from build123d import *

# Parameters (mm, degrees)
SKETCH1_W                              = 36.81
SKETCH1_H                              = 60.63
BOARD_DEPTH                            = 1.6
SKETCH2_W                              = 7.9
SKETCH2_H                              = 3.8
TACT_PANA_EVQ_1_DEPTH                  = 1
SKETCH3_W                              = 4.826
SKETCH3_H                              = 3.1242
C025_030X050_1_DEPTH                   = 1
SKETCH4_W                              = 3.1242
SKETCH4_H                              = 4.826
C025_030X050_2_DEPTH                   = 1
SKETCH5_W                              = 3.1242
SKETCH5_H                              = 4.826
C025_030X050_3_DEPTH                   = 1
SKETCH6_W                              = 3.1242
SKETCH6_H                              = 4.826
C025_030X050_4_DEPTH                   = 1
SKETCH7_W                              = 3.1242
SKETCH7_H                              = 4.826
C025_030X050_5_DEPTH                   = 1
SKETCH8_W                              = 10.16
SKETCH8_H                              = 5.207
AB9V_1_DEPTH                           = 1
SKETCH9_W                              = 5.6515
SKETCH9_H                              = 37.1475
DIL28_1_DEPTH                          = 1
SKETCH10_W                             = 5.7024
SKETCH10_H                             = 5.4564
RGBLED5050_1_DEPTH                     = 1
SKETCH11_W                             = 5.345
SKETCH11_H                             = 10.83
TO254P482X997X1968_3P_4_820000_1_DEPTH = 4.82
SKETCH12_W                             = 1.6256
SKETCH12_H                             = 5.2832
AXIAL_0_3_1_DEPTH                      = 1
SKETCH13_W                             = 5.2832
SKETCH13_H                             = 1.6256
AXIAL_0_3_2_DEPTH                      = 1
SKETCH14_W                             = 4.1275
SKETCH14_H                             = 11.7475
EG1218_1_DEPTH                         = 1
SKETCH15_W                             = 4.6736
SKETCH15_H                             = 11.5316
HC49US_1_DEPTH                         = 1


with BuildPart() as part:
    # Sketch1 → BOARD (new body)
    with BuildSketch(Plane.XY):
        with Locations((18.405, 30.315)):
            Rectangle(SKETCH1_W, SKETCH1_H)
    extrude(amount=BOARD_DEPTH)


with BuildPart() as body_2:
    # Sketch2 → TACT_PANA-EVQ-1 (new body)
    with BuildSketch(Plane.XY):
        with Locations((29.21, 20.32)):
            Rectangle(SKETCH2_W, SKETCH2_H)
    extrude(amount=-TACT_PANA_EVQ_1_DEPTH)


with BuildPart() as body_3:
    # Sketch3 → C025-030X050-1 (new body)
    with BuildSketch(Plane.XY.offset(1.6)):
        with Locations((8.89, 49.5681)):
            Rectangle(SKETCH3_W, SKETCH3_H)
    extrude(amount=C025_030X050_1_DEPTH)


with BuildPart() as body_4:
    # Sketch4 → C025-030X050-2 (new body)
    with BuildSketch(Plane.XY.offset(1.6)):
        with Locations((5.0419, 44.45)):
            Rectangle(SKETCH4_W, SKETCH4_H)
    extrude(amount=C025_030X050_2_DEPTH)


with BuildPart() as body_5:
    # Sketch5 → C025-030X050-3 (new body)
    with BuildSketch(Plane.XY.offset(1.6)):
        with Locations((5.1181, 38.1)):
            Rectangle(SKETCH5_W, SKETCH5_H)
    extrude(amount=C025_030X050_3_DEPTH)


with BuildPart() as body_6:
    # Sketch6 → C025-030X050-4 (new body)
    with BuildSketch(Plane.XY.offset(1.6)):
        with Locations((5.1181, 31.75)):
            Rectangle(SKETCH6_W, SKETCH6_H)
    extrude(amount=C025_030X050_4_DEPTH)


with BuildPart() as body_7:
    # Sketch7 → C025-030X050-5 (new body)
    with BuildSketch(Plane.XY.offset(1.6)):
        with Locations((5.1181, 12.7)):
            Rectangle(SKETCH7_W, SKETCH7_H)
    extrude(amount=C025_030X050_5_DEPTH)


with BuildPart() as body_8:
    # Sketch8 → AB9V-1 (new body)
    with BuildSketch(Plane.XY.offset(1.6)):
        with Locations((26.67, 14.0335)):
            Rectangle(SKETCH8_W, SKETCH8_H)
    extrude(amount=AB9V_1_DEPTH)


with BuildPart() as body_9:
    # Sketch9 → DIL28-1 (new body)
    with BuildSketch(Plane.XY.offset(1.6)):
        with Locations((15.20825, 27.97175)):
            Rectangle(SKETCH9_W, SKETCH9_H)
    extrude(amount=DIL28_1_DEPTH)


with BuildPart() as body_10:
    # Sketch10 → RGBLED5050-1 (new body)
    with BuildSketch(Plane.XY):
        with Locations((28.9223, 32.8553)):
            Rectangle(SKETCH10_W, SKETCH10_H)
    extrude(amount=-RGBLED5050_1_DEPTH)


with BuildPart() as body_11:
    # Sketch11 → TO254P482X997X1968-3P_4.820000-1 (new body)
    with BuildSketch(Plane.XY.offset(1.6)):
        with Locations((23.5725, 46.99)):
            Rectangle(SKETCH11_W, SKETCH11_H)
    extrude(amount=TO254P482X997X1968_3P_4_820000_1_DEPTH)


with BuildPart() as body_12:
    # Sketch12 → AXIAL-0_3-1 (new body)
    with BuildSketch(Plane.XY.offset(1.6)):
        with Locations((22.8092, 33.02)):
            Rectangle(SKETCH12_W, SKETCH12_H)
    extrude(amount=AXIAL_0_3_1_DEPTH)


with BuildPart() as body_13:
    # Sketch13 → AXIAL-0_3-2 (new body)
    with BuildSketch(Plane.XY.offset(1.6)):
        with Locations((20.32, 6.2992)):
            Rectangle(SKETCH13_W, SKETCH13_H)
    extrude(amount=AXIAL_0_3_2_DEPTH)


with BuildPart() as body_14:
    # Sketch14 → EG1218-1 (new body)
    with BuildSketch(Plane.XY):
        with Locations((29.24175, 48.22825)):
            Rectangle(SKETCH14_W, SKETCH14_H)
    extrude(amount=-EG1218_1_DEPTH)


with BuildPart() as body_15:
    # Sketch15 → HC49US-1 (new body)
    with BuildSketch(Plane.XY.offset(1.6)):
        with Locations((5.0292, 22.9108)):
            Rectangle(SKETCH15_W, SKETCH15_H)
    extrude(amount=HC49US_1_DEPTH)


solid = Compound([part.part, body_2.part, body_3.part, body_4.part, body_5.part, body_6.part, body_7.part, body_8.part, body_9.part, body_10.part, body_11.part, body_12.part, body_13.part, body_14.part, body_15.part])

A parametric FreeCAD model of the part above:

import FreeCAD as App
import Part
import Sketcher

V = App.Vector
Q = App.Units.Quantity


def add_polygon(sketch, points):
    """Adds a closed chain of lines whose ends are joined by coincident constraints."""
    first, n = sketch.GeometryCount, len(points)
    for a, b in zip(points, points[1:] + points[:1]):
        sketch.addGeometry(Part.LineSegment(App.Vector(*a, 0), App.Vector(*b, 0)), False)
    for i in range(n):
        sketch.addConstraint(Sketcher.Constraint("Coincident", first + i, 2, first + (i + 1) % n, 1))

doc = App.newDocument("Part")
params = doc.addObject("Spreadsheet::Sheet", "Params")
for row, (alias, value) in enumerate([
    ("pad1_length", "1.6 mm"),
    ("pad2_length", "1 mm"),
    ("sketch3_width", "0.19 in"),
    ("sketch3_height", "0.123 in"),
    ("pad3_length", "1 mm"),
    ("sketch4_height", "0.19 in"),
    ("sketch4_width", "0.123 in"),
    ("pad4_length", "1 mm"),
    ("sketch5_height", "0.19 in"),
    ("sketch5_width", "0.123 in"),
    ("pad5_length", "1 mm"),
    ("sketch6_height", "0.19 in"),
    ("sketch6_width", "0.123 in"),
    ("pad6_length", "1 mm"),
    ("sketch7_height", "0.19 in"),
    ("sketch7_width", "0.123 in"),
    ("pad7_length", "1 mm"),
    ("sketch8_width", "0.4 in"),
    ("sketch8_height", "0.205 in"),
    ("pad8_length", "1 mm"),
    ("pad9_length", "1 mm"),
    ("pad10_length", "1 mm"),
    ("pad11_length", "4.82 mm"),
    ("sketch12_width", "0.064 in"),
    ("sketch12_height", "0.208 in"),
    ("pad12_length", "1 mm"),
    ("sketch13_width", "0.208 in"),
    ("sketch13_height", "0.064 in"),
    ("pad13_length", "1 mm"),
    ("pad14_length", "1 mm"),
    ("sketch15_width", "0.184 in"),
    ("sketch15_height", "0.454 in"),
    ("pad15_length", "1 mm"),
], start=1):
    params.set(f"A{row}", alias)
    params.set(f"B{row}", "=" + value)
    params.setAlias(f"B{row}", alias)

body = doc.addObject("PartDesign::Body", "Body")

# Sketch on XY plane
sketch1 = body.newObject("Sketcher::SketchObject", "Sketch")
sketch1.AttachmentSupport = (doc.getObject("XY_Plane"), [""])
sketch1.MapMode = "FlatFace"
add_polygon(sketch1, [(0, 61), (0, 0), (37, 0), (37, 61)])  # lines 0-3
sketch1.addConstraint(Sketcher.Constraint("Vertical", 0))
sketch1.addConstraint(Sketcher.Constraint("Horizontal", 1))
sketch1.addConstraint(Sketcher.Constraint("Vertical", 2))
sketch1.addConstraint(Sketcher.Constraint("Horizontal", 3))
sketch1.addConstraint(Sketcher.Constraint("Coincident", 0, 2, -1, 1))
sketch1.addConstraint(Sketcher.Constraint("DistanceX", 1, 1, 1, 2, 36.81))
sketch1.addConstraint(Sketcher.Constraint("DistanceY", 0, 2, 0, 1, 60.63))
pad1 = body.newObject("PartDesign::Pad", "Pad")
pad1.Profile = sketch1
pad1.setExpression("Length", "Params.pad1_length")
body2 = doc.addObject("PartDesign::Body", "Body001")

# Sketch on XY plane
sketch2 = body2.newObject("Sketcher::SketchObject", "Sketch001")
sketch2.AttachmentSupport = (doc.getObject("XY_Plane001"), [""])
sketch2.MapMode = "FlatFace"
add_polygon(sketch2, [(25.3, 22.2), (25.3, 18.4), (33.2, 18.4), (33.2, 22.2)])  # lines 0-3
sketch2.addConstraint(Sketcher.Constraint("Vertical", 0))
sketch2.addConstraint(Sketcher.Constraint("Horizontal", 1))
sketch2.addConstraint(Sketcher.Constraint("Vertical", 2))
sketch2.addConstraint(Sketcher.Constraint("Horizontal", 3))
sketch2.addConstraint(Sketcher.Constraint("DistanceX", 1, 1, 1, 2, 7.9))
sketch2.addConstraint(Sketcher.Constraint("DistanceY", 0, 2, 0, 1, 3.8))
sketch2.addConstraint(Sketcher.Constraint("DistanceX", -1, 1, 0, 2, 25.26))
sketch2.addConstraint(Sketcher.Constraint("DistanceY", -1, 1, 0, 2, 18.42))
pad2 = body2.newObject("PartDesign::Pad", "Pad001")
pad2.Profile = sketch2
pad2.setExpression("Length", "Params.pad2_length")
pad2.Reversed = True
body3 = doc.addObject("PartDesign::Body", "Body002")

# Sketch on XY plane
sketch3 = body3.newObject("Sketcher::SketchObject", "Sketch002")
sketch3.AttachmentSupport = (doc.getObject("XY_Plane002"), [""])
sketch3.MapMode = "FlatFace"
sketch3.AttachmentOffset = App.Placement(V(0, 0, 1.6), App.Rotation())
add_polygon(sketch3, [(6.5, 51.1), (6.5, 48), (11.3, 48), (11.3, 51.1)])  # lines 0-3
sketch3.addConstraint(Sketcher.Constraint("Vertical", 0))
sketch3.addConstraint(Sketcher.Constraint("Horizontal", 1))
sketch3.addConstraint(Sketcher.Constraint("Vertical", 2))
sketch3.addConstraint(Sketcher.Constraint("Horizontal", 3))
sketch3.addConstraint(Sketcher.Constraint("DistanceX", 1, 1, 1, 2, Q("0.19 in")))
sketch3.addConstraint(Sketcher.Constraint("DistanceY", 0, 2, 0, 1, Q("0.123 in")))
sketch3.addConstraint(Sketcher.Constraint("DistanceY", -1, 1, 0, 2, Q("1.89 in")))
sketch3.addConstraint(Sketcher.Constraint("DistanceX", -1, 1, 0, 2, Q("0.255 in")))
sketch3.setExpression("Constraints[8]", "Params.sketch3_width")
sketch3.setExpression("Constraints[9]", "Params.sketch3_height")
pad3 = body3.newObject("PartDesign::Pad", "Pad002")
pad3.Profile = sketch3
pad3.setExpression("Length", "Params.pad3_length")
body4 = doc.addObject("PartDesign::Body", "Body003")

# Sketch on XY plane
sketch4 = body4.newObject("Sketcher::SketchObject", "Sketch003")
sketch4.AttachmentSupport = (doc.getObject("XY_Plane003"), [""])
sketch4.MapMode = "FlatFace"
sketch4.AttachmentOffset = App.Placement(V(0, 0, 1.6), App.Rotation())
add_polygon(sketch4, [(3.5, 46.9), (3.5, 42), (6.6, 42), (6.6, 46.9)])  # lines 0-3
sketch4.addConstraint(Sketcher.Constraint("Vertical", 0))
sketch4.addConstraint(Sketcher.Constraint("Horizontal", 1))
sketch4.addConstraint(Sketcher.Constraint("Vertical", 2))
sketch4.addConstraint(Sketcher.Constraint("Horizontal", 3))
sketch4.addConstraint(Sketcher.Constraint("DistanceY", 0, 2, 0, 1, Q("0.19 in")))
sketch4.addConstraint(Sketcher.Constraint("DistanceX", 1, 1, 1, 2, Q("0.123 in")))
sketch4.addConstraint(Sketcher.Constraint("DistanceX", -1, 1, 1, 2, Q("0.26 in")))
sketch4.addConstraint(Sketcher.Constraint("DistanceY", -1, 1, 0, 2, Q("1.655 in")))
sketch4.setExpression("Constraints[8]", "Params.sketch4_height")
sketch4.setExpression("Constraints[9]", "Params.sketch4_width")
pad4 = body4.newObject("PartDesign::Pad", "Pad003")
pad4.Profile = sketch4
pad4.setExpression("Length", "Params.pad4_length")
body5 = doc.addObject("PartDesign::Body", "Body004")

# Sketch on XY plane
sketch5 = body5.newObject("Sketcher::SketchObject", "Sketch004")
sketch5.AttachmentSupport = (doc.getObject("XY_Plane004"), [""])
sketch5.MapMode = "FlatFace"
sketch5.AttachmentOffset = App.Placement(V(0, 0, 1.6), App.Rotation())
add_polygon(sketch5, [(3.6, 40.5), (3.6, 35.7), (6.7, 35.7), (6.7, 40.5)])  # lines 0-3
sketch5.addConstraint(Sketcher.Constraint("Vertical", 0))
sketch5.addConstraint(Sketcher.Constraint("Horizontal", 1))
sketch5.addConstraint(Sketcher.Constraint("Vertical", 2))
sketch5.addConstraint(Sketcher.Constraint("Horizontal", 3))
sketch5.addConstraint(Sketcher.Constraint("DistanceY", 0, 2, 0, 1, Q("0.19 in")))
sketch5.addConstraint(Sketcher.Constraint("DistanceX", 1, 1, 1, 2, Q("0.123 in")))
sketch5.addConstraint(Sketcher.Constraint("DistanceX", -1, 1, 0, 2, Q("0.14 in")))
sketch5.addConstraint(Sketcher.Constraint("DistanceY", -1, 1, 0, 2, Q("1.405 in")))
sketch5.setExpression("Constraints[8]", "Params.sketch5_height")
sketch5.setExpression("Constraints[9]", "Params.sketch5_width")
pad5 = body5.newObject("PartDesign::Pad", "Pad004")
pad5.Profile = sketch5
pad5.setExpression("Length", "Params.pad5_length")
body6 = doc.addObject("PartDesign::Body", "Body005")

# Sketch on XY plane
sketch6 = body6.newObject("Sketcher::SketchObject", "Sketch005")
sketch6.AttachmentSupport = (doc.getObject("XY_Plane005"), [""])
sketch6.MapMode = "FlatFace"
sketch6.AttachmentOffset = App.Placement(V(0, 0, 1.6), App.Rotation())
add_polygon(sketch6, [(3.6, 34.2), (3.6, 29.3), (6.7, 29.3), (6.7, 34.2)])  # lines 0-3
sketch6.addConstraint(Sketcher.Constraint("Vertical", 0))
sketch6.addConstraint(Sketcher.Constraint("Horizontal", 1))
sketch6.addConstraint(Sketcher.Constraint("Vertical", 2))
sketch6.addConstraint(Sketcher.Constraint("Horizontal", 3))
sketch6.addConstraint(Sketcher.Constraint("DistanceY", 0, 2, 0, 1, Q("0.19 in")))
sketch6.addConstraint(Sketcher.Constraint("DistanceX", 1, 1, 1, 2, Q("0.123 in")))
sketch6.addConstraint(Sketcher.Constraint("DistanceX", -1, 1, 0, 2, Q("0.14 in")))
sketch6.addConstraint(Sketcher.Constraint("DistanceY", -1, 1, 0, 2, Q("1.155 in")))
sketch6.setExpression("Constraints[8]", "Params.sketch6_height")
sketch6.setExpression("Constraints[9]", "Params.sketch6_width")
pad6 = body6.newObject("PartDesign::Pad", "Pad005")
pad6.Profile = sketch6
pad6.setExpression("Length", "Params.pad6_length")
body7 = doc.addObject("PartDesign::Body", "Body006")

# Sketch on XY plane
sketch7 = body7.newObject("Sketcher::SketchObject", "Sketch006")
sketch7.AttachmentSupport = (doc.getObject("XY_Plane006"), [""])
sketch7.MapMode = "FlatFace"
sketch7.AttachmentOffset = App.Placement(V(0, 0, 1.6), App.Rotation())
add_polygon(sketch7, [(3.6, 15.1), (3.6, 10.3), (6.7, 10.3), (6.7, 15.1)])  # lines 0-3
sketch7.addConstraint(Sketcher.Constraint("Vertical", 0))
sketch7.addConstraint(Sketcher.Constraint("Horizontal", 1))
sketch7.addConstraint(Sketcher.Constraint("Vertical", 2))
sketch7.addConstraint(Sketcher.Constraint("Horizontal", 3))
sketch7.addConstraint(Sketcher.Constraint("DistanceY", 0, 2, 0, 1, Q("0.19 in")))
sketch7.addConstraint(Sketcher.Constraint("DistanceX", 1, 1, 1, 2, Q("0.123 in")))
sketch7.addConstraint(Sketcher.Constraint("DistanceX", -1, 1, 0, 2, Q("0.14 in")))
sketch7.addConstraint(Sketcher.Constraint("DistanceY", -1, 1, 0, 2, Q("0.405 in")))
sketch7.setExpression("Constraints[8]", "Params.sketch7_height")
sketch7.setExpression("Constraints[9]", "Params.sketch7_width")
pad7 = body7.newObject("PartDesign::Pad", "Pad006")
pad7.Profile = sketch7
pad7.setExpression("Length", "Params.pad7_length")
body8 = doc.addObject("PartDesign::Body", "Body007")

# Sketch on XY plane
sketch8 = body8.newObject("Sketcher::SketchObject", "Sketch007")
sketch8.AttachmentSupport = (doc.getObject("XY_Plane007"), [""])
sketch8.MapMode = "FlatFace"
sketch8.AttachmentOffset = App.Placement(V(0, 0, 1.6), App.Rotation())
add_polygon(sketch8, [(22, 17), (22, 11), (32, 11), (32, 17)])  # lines 0-3
sketch8.addConstraint(Sketcher.Constraint("Vertical", 0))
sketch8.addConstraint(Sketcher.Constraint("Horizontal", 1))
sketch8.addConstraint(Sketcher.Constraint("Vertical", 2))
sketch8.addConstraint(Sketcher.Constraint("Horizontal", 3))
sketch8.addConstraint(Sketcher.Constraint("DistanceX", 1, 1, 1, 2, Q("0.4 in")))
sketch8.addConstraint(Sketcher.Constraint("DistanceY", 0, 2, 0, 1, Q("0.205 in")))
sketch8.addConstraint(Sketcher.Constraint("DistanceX", -1, 1, 0, 2, Q("0.85 in")))
sketch8.addConstraint(Sketcher.Constraint("DistanceY", -1, 1, 0, 2, Q("0.45 in")))
sketch8.setExpression("Constraints[8]", "Params.sketch8_width")
sketch8.setExpression("Constraints[9]", "Params.sketch8_height")
pad8 = body8.newObject("PartDesign::Pad", "Pad007")
pad8.Profile = sketch8
pad8.setExpression("Length", "Params.pad8_length")
body9 = doc.addObject("PartDesign::Body", "Body008")

# Sketch on XY plane
sketch9 = body9.newObject("Sketcher::SketchObject", "Sketch008")
sketch9.AttachmentSupport = (doc.getObject("XY_Plane008"), [""])
sketch9.MapMode = "FlatFace"
sketch9.AttachmentOffset = App.Placement(V(0, 0, 1.6), App.Rotation())
add_polygon(sketch9, [(12, 47), (12, 9), (18, 9), (18, 47)])  # lines 0-3
sketch9.addConstraint(Sketcher.Constraint("Vertical", 0))
sketch9.addConstraint(Sketcher.Constraint("Horizontal", 1))
sketch9.addConstraint(Sketcher.Constraint("Vertical", 2))
sketch9.addConstraint(Sketcher.Constraint("Horizontal", 3))
sketch9.addConstraint(Sketcher.Constraint("DistanceY", -1, 1, 0, 2, Q("0.37 in")))
sketch9.addConstraint(Sketcher.Constraint("DistanceX", -1, 1, 1, 2, Q("0.71 in")))
sketch9.addConstraint(Sketcher.Constraint("DistanceX", 1, 1, 1, 2, Q("0.2225 in")))
sketch9.addConstraint(Sketcher.Constraint("DistanceY", 0, 2, 0, 1, Q("1.4625 in")))
pad9 = body9.newObject("PartDesign::Pad", "Pad008")
pad9.Profile = sketch9
pad9.setExpression("Length", "Params.pad9_length")
body10 = doc.addObject("PartDesign::Body", "Body009")

# Sketch on XY plane
sketch10 = body10.newObject("Sketcher::SketchObject", "Sketch009")
sketch10.AttachmentSupport = (doc.getObject("XY_Plane009"), [""])
sketch10.MapMode = "FlatFace"
add_polygon(sketch10, [(26, 36), (26, 30), (32, 30), (32, 36)])  # lines 0-3
sketch10.addConstraint(Sketcher.Constraint("Vertical", 0))
sketch10.addConstraint(Sketcher.Constraint("Horizontal", 1))
sketch10.addConstraint(Sketcher.Constraint("Vertical", 2))
sketch10.addConstraint(Sketcher.Constraint("Horizontal", 3))
sketch10.addConstraint(Sketcher.Constraint("DistanceX", 1, 1, 1, 2, 5.7024))
sketch10.addConstraint(Sketcher.Constraint("DistanceY", 0, 2, 0, 1, 5.4564))
sketch10.addConstraint(Sketcher.Constraint("DistanceX", -1, 1, 0, 2, 26.0711))
sketch10.addConstraint(Sketcher.Constraint("DistanceY", -1, 1, 0, 2, 30.1271))
pad10 = body10.newObject("PartDesign::Pad", "Pad009")
pad10.Profile = sketch10
pad10.setExpression("Length", "Params.pad10_length")
pad10.Reversed = True
body11 = doc.addObject("PartDesign::Body", "Body010")

# Sketch on XY plane
sketch11 = body11.newObject("Sketcher::SketchObject", "Sketch010")
sketch11.AttachmentSupport = (doc.getObject("XY_Plane010"), [""])
sketch11.MapMode = "FlatFace"
sketch11.AttachmentOffset = App.Placement(V(0, 0, 1.6), App.Rotation())
add_polygon(sketch11, [(21, 52), (21, 42), (26, 42), (26, 52)])  # lines 0-3
sketch11.addConstraint(Sketcher.Constraint("Vertical", 0))
sketch11.addConstraint(Sketcher.Constraint("Horizontal", 1))
sketch11.addConstraint(Sketcher.Constraint("Vertical", 2))
sketch11.addConstraint(Sketcher.Constraint("Horizontal", 3))
sketch11.addConstraint(Sketcher.Constraint("DistanceX", 1, 1, 1, 2, 5.345))
sketch11.addConstraint(Sketcher.Constraint("DistanceY", 0, 2, 0, 1, 10.83))
sketch11.addConstraint(Sketcher.Constraint("DistanceX", -1, 1, 0, 2, 20.9))
sketch11.addConstraint(Sketcher.Constraint("DistanceY", -1, 1, 0, 2, 41.575))
pad11 = body11.newObject("PartDesign::Pad", "Pad010")
pad11.Profile = sketch11
pad11.setExpression("Length", "Params.pad11_length")
body12 = doc.addObject("PartDesign::Body", "Body011")

# Sketch on XY plane
sketch12 = body12.newObject("Sketcher::SketchObject", "Sketch011")
sketch12.AttachmentSupport = (doc.getObject("XY_Plane011"), [""])
sketch12.MapMode = "FlatFace"
sketch12.AttachmentOffset = App.Placement(V(0, 0, 1.6), App.Rotation())
add_polygon(sketch12, [(22, 35.7), (22, 30.4), (23.6, 30.4), (23.6, 35.7)])  # lines 0-3
sketch12.addConstraint(Sketcher.Constraint("Vertical", 0))
sketch12.addConstraint(Sketcher.Constraint("Horizontal", 1))
sketch12.addConstraint(Sketcher.Constraint("Vertical", 2))
sketch12.addConstraint(Sketcher.Constraint("Horizontal", 3))
sketch12.addConstraint(Sketcher.Constraint("DistanceX", 1, 1, 1, 2, Q("0.064 in")))
sketch12.addConstraint(Sketcher.Constraint("DistanceY", 0, 2, 0, 1, Q("0.208 in")))
sketch12.addConstraint(Sketcher.Constraint("DistanceX", -1, 1, 1, 2, Q("0.93 in")))
sketch12.addConstraint(Sketcher.Constraint("DistanceY", -1, 1, 0, 2, Q("1.196 in")))
sketch12.setExpression("Constraints[8]", "Params.sketch12_width")
sketch12.setExpression("Constraints[9]", "Params.sketch12_height")
pad12 = body12.newObject("PartDesign::Pad", "Pad011")
pad12.Profile = sketch12
pad12.setExpression("Length", "Params.pad12_length")
body13 = doc.addObject("PartDesign::Body", "Body012")

# Sketch on XY plane
sketch13 = body13.newObject("Sketcher::SketchObject", "Sketch012")
sketch13.AttachmentSupport = (doc.getObject("XY_Plane012"), [""])
sketch13.MapMode = "FlatFace"
sketch13.AttachmentOffset = App.Placement(V(0, 0, 1.6), App.Rotation())
add_polygon(sketch13, [(17.7, 7.1), (17.7, 5.5), (23, 5.5), (23, 7.1)])  # lines 0-3
sketch13.addConstraint(Sketcher.Constraint("Vertical", 0))
sketch13.addConstraint(Sketcher.Constraint("Horizontal", 1))
sketch13.addConstraint(Sketcher.Constraint("Vertical", 2))
sketch13.addConstraint(Sketcher.Constraint("Horizontal", 3))
sketch13.addConstraint(Sketcher.Constraint("DistanceX", 1, 1, 1, 2, Q("0.208 in")))
sketch13.addConstraint(Sketcher.Constraint("DistanceY", 0, 2, 0, 1, Q("0.064 in")))
sketch13.addConstraint(Sketcher.Constraint("DistanceY", -1, 1, 2, 2, Q("0.28 in")))
sketch13.addConstraint(Sketcher.Constraint("DistanceX", -1, 1, 0, 2, Q("0.696 in")))
sketch13.setExpression("Constraints[8]", "Params.sketch13_width")
sketch13.setExpression("Constraints[9]", "Params.sketch13_height")
pad13 = body13.newObject("PartDesign::Pad", "Pad012")
pad13.Profile = sketch13
pad13.setExpression("Length", "Params.pad13_length")
body14 = doc.addObject("PartDesign::Body", "Body013")

# Sketch on XY plane
sketch14 = body14.newObject("Sketcher::SketchObject", "Sketch013")
sketch14.AttachmentSupport = (doc.getObject("XY_Plane013"), [""])
sketch14.MapMode = "FlatFace"
add_polygon(sketch14, [(27.2, 54.1), (27.2, 42.4), (31.3, 42.4), (31.3, 54.1)])  # lines 0-3
sketch14.addConstraint(Sketcher.Constraint("Vertical", 0))
sketch14.addConstraint(Sketcher.Constraint("Horizontal", 1))
sketch14.addConstraint(Sketcher.Constraint("Vertical", 2))
sketch14.addConstraint(Sketcher.Constraint("Horizontal", 3))
sketch14.addConstraint(Sketcher.Constraint("DistanceX", -1, 1, 0, 2, Q("1.07 in")))
sketch14.addConstraint(Sketcher.Constraint("DistanceY", -1, 1, 2, 2, Q("2.13 in")))
sketch14.addConstraint(Sketcher.Constraint("DistanceX", 1, 1, 1, 2, Q("0.1625 in")))
sketch14.addConstraint(Sketcher.Constraint("DistanceY", 0, 2, 0, 1, Q("0.4625 in")))
pad14 = body14.newObject("PartDesign::Pad", "Pad013")
pad14.Profile = sketch14
pad14.setExpression("Length", "Params.pad14_length")
pad14.Reversed = True
body15 = doc.addObject("PartDesign::Body", "Body014")

# Sketch on XY plane
sketch15 = body15.newObject("Sketcher::SketchObject", "Sketch014")
sketch15.AttachmentSupport = (doc.getObject("XY_Plane014"), [""])
sketch15.MapMode = "FlatFace"
sketch15.AttachmentOffset = App.Placement(V(0, 0, 1.6), App.Rotation())
add_polygon(sketch15, [(2.7, 28.7), (2.7, 17.1), (7.4, 17.1), (7.4, 28.7)])  # lines 0-3
sketch15.addConstraint(Sketcher.Constraint("Vertical", 0))
sketch15.addConstraint(Sketcher.Constraint("Horizontal", 1))
sketch15.addConstraint(Sketcher.Constraint("Vertical", 2))
sketch15.addConstraint(Sketcher.Constraint("Horizontal", 3))
sketch15.addConstraint(Sketcher.Constraint("DistanceX", 1, 1, 1, 2, Q("0.184 in")))
sketch15.addConstraint(Sketcher.Constraint("DistanceY", 0, 2, 0, 1, Q("0.454 in")))
sketch15.addConstraint(Sketcher.Constraint("DistanceX", -1, 1, 1, 2, Q("0.29 in")))
sketch15.addConstraint(Sketcher.Constraint("DistanceY", -1, 1, 0, 2, Q("0.675 in")))
sketch15.setExpression("Constraints[8]", "Params.sketch15_width")
sketch15.setExpression("Constraints[9]", "Params.sketch15_height")
pad15 = body15.newObject("PartDesign::Pad", "Pad014")
pad15.Profile = sketch15
pad15.setExpression("Length", "Params.pad15_length")

doc.recompute()
